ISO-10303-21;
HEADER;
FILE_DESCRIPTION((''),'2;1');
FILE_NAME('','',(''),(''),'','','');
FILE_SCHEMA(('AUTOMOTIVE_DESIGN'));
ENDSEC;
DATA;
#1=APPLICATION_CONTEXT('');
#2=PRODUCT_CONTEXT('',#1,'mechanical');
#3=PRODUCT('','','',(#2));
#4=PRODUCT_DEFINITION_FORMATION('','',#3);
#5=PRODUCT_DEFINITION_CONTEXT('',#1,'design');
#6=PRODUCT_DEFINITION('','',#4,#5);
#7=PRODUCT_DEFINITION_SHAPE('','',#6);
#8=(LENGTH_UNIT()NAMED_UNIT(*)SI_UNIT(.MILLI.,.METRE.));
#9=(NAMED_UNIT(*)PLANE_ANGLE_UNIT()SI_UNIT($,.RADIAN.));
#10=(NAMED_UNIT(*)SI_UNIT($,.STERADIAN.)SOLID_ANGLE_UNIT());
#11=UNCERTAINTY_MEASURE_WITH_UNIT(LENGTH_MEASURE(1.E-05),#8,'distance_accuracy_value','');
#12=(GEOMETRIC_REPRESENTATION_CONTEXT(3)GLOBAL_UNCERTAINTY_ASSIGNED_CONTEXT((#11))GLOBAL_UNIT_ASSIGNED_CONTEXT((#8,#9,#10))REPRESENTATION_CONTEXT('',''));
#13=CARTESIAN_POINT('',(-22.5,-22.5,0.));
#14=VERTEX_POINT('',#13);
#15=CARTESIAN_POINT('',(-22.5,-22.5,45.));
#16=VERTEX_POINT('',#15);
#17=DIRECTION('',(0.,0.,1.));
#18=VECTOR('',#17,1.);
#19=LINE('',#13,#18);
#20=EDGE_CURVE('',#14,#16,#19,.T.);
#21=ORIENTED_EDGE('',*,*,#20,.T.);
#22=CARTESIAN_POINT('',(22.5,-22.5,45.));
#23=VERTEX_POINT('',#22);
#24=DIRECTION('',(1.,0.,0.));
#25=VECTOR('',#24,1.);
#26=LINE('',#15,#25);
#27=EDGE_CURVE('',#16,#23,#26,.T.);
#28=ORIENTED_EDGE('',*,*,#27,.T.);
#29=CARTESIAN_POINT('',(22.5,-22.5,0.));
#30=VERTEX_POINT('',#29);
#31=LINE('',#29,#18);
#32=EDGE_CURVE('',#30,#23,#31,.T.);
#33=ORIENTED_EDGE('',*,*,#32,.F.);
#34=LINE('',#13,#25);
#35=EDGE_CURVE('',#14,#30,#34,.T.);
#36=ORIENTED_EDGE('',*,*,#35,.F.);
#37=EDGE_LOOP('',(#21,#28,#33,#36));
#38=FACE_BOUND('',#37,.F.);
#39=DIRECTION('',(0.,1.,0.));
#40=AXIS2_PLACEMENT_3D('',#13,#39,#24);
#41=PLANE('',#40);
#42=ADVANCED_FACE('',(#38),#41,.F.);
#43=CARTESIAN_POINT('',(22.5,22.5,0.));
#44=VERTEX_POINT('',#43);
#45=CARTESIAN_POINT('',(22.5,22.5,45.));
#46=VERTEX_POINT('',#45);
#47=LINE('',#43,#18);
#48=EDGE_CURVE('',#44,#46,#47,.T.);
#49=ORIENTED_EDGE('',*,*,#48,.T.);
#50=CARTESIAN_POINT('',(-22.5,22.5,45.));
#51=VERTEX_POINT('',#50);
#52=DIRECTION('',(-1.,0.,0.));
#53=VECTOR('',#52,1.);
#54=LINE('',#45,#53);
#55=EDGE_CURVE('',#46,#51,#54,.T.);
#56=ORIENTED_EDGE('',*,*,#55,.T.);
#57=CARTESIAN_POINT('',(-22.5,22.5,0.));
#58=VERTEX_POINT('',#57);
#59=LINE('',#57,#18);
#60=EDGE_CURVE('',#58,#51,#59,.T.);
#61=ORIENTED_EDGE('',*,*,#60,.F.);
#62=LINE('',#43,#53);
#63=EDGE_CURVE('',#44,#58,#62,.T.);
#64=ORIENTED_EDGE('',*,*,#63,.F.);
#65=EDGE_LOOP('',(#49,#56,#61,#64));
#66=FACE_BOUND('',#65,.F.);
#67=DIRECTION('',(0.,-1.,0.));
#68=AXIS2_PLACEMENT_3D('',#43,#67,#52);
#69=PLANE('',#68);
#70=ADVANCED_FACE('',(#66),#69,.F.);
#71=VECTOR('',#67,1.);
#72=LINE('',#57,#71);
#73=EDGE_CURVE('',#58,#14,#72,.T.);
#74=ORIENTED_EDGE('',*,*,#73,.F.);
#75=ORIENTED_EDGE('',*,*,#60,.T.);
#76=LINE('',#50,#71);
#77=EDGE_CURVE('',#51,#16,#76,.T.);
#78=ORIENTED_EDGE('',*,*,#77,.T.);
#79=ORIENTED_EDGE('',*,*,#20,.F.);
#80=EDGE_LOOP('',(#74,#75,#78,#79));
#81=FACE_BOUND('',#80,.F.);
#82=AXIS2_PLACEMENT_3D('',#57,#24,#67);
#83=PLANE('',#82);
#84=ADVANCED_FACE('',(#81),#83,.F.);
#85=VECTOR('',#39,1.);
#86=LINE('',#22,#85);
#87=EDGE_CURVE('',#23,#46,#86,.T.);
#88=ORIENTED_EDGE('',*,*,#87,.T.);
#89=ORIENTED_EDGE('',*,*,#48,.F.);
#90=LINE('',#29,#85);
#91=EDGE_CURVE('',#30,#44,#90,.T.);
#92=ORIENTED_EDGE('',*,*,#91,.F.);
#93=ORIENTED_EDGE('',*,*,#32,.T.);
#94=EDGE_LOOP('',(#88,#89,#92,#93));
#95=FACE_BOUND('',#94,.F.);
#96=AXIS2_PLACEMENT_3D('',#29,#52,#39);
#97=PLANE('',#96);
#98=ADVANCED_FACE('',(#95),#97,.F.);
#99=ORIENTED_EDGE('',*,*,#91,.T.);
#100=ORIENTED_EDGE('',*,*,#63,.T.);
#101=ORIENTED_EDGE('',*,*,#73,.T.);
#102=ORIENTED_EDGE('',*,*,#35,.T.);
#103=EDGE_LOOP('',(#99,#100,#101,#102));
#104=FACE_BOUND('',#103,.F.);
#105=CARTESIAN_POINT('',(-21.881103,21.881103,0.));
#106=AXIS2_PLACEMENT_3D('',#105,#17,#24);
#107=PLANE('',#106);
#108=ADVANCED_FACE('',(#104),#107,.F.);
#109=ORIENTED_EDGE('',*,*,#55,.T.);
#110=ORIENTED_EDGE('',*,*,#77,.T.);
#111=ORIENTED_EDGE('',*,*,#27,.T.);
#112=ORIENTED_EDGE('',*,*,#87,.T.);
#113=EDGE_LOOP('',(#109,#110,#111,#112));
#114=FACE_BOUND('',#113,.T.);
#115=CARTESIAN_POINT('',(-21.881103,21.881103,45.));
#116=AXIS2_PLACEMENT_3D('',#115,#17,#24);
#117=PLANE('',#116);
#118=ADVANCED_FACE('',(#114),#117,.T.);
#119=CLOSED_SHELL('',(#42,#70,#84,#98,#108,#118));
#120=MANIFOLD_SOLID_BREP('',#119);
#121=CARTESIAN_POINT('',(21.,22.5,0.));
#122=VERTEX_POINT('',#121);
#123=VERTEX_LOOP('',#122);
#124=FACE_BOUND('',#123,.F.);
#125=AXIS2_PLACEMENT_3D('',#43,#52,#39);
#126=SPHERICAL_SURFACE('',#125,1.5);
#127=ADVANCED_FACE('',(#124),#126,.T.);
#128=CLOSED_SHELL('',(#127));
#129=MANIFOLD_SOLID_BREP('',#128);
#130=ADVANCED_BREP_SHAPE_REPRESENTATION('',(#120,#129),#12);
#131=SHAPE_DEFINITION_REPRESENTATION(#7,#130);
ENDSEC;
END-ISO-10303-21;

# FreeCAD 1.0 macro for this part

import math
import FreeCAD as App
import Part
import Sketcher

V = App.Vector

doc = App.newDocument("Part")
body = doc.addObject("PartDesign::Body", "Body")

# Sketch on XY plane
sketch1 = body.newObject("Sketcher::SketchObject", "Sketch")
sketch1.AttachmentSupport = (doc.getObject("XY_Plane"), [""])
sketch1.MapMode = "FlatFace"
sketch1.addGeometry([
    Part.LineSegment(V(-22, 22, 0), V(-22, -22, 0)),
    Part.LineSegment(V(-22, -22, 0), V(22, -22, 0)),
    Part.LineSegment(V(22, -22, 0), V(22, 22, 0)),
    Part.LineSegment(V(22, 22, 0), V(-22, 22, 0)),
], False)
sketch1.addConstraint([
    Sketcher.Constraint("Coincident", 0, 2, 1, 1),
    Sketcher.Constraint("Coincident", 1, 2, 2, 1),
    Sketcher.Constraint("Coincident", 2, 2, 3, 1),
    Sketcher.Constraint("Coincident", 3, 2, 0, 1),
    Sketcher.Constraint("Vertical", 0),
    Sketcher.Constraint("Horizontal", 1),
    Sketcher.Constraint("Vertical", 2),
    Sketcher.Constraint("Horizontal", 3),
    Sketcher.Constraint("Symmetric", 0, 2, 2, 2, -1, 1),
    Sketcher.Constraint("Equal", 3, 0),
    Sketcher.Constraint("DistanceX", 1, 1, 1, 2, 45.0),
])
pad1 = body.newObject("PartDesign::Pad", "Pad")
pad1.Profile = sketch1
pad1.Length = 45
body2 = doc.addObject("PartDesign::Body", "Body001")

# Sketch on XY plane
sketch2 = body2.newObject("Sketcher::SketchObject", "Sketch001")
sketch2.AttachmentSupport = (doc.getObject("XY_Plane001"), [""])
sketch2.MapMode = "FlatFace"
sketch2.addGeometry([
    Part.ArcOfCircle(Part.Circle(V(22.5, 22.5, 0), V(0, 0, 1), 1.5), math.radians(0), math.radians(180)),
    Part.LineSegment(V(21, 22.5, 0), V(24, 22.5, 0)),
], False)
sketch2.addGeometry(Part.LineSegment(V(21, 22.5, 0), V(24, 22.5, 0)), True)  # axis
sketch2.addConstraint([
    Sketcher.Constraint("Coincident", 0, 1, 1, 2),
    Sketcher.Constraint("Coincident", 1, 1, 0, 2),
    Sketcher.Constraint("Horizontal", 1),
    Sketcher.Constraint("Horizontal", 2),
    Sketcher.Constraint("Coincident", 2, 1, 1, 1),
    Sketcher.Constraint("Equal", 1, 2),
    Sketcher.Constraint("Radius", 0, 1.5),
    Sketcher.Constraint("DistanceX", -1, 1, 0, 1, 24.0),
    Sketcher.Constraint("DistanceY", -1, 1, 0, 3, 22.5),
    Sketcher.Constraint("DistanceY", -1, 1, 0, 1, 22.5),
])
revolution = body2.newObject("PartDesign::Revolution", "Revolution")
revolution.Profile = sketch2
revolution.ReferenceAxis = (sketch2, ["Axis0"])
revolution.Angle = 360

doc.recompute()
